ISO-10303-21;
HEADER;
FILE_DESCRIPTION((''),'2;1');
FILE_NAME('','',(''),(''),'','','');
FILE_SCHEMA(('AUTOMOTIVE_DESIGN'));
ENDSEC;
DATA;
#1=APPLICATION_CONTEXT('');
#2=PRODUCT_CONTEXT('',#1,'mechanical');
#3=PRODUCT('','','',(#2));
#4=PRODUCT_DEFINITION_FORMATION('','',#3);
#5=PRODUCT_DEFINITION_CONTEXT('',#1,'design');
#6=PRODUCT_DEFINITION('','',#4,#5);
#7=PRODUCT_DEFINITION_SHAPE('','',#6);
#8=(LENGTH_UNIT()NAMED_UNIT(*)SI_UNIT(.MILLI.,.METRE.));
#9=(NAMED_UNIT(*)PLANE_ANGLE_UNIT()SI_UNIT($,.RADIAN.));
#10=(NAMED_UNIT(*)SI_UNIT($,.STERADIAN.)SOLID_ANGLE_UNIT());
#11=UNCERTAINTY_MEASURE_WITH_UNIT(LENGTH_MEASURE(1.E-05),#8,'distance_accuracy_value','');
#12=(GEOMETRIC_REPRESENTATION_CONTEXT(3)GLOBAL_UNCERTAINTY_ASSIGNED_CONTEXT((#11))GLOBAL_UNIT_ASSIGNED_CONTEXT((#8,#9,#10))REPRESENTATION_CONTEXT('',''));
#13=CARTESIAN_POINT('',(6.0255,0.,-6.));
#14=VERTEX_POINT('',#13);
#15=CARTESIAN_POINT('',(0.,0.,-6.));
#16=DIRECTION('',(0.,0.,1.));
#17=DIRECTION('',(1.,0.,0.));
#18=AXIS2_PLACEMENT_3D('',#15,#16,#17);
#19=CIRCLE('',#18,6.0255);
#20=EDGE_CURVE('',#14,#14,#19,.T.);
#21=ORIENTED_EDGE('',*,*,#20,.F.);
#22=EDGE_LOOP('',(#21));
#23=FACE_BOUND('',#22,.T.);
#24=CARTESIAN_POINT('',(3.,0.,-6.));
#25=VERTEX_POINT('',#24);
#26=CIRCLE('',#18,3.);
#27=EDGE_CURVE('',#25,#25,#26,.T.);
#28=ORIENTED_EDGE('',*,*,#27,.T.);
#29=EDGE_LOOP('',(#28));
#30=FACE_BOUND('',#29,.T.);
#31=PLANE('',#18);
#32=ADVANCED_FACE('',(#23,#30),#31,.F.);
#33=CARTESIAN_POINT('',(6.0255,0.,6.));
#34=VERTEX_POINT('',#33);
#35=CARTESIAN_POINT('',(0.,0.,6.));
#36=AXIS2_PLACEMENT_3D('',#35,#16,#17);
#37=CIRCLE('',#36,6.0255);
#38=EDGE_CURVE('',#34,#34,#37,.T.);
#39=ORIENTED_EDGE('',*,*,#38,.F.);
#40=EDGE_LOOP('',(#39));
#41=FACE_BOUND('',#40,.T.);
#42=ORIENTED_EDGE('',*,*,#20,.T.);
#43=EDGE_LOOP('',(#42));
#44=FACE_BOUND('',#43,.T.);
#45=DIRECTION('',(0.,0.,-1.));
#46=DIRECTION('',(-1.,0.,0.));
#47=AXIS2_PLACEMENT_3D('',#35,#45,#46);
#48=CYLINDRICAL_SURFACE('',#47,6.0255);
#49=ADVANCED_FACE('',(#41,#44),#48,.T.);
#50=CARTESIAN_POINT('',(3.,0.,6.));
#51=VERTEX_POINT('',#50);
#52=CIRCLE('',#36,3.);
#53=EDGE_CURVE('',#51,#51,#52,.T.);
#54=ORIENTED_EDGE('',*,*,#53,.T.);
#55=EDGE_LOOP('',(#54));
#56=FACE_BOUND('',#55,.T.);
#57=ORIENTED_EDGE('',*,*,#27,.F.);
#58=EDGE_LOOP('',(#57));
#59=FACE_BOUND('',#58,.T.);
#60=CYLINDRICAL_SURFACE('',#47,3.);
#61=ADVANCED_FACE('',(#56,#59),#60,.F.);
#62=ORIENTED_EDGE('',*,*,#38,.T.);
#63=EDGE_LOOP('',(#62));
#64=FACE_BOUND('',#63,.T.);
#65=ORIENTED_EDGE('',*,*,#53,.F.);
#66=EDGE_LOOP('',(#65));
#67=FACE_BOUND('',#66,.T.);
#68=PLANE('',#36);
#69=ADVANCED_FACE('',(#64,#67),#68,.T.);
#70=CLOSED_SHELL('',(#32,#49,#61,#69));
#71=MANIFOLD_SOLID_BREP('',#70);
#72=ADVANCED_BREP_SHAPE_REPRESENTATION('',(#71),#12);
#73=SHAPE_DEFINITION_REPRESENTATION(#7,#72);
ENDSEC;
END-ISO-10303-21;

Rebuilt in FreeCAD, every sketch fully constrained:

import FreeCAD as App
import Part
import Sketcher

doc = App.newDocument("Part")
body = doc.addObject("PartDesign::Body", "Body")

sketch1 = body.newObject("Sketcher::SketchObject", "Sketch")
sketch1.AttachmentSupport = (doc.getObject("XY_Plane"), [""])
sketch1.MapMode = "FlatFace"
sketch1.addGeometry([
    Part.Circle(App.Vector(0, 0, 0), App.Vector(0, 0, 1), 6),
    Part.Circle(App.Vector(0, 0, 0), App.Vector(0, 0, 1), 3),
], False)
sketch1.addConstraint([
    Sketcher.Constraint("Coincident", 0, 3, -1, 1),
    Sketcher.Constraint("Coincident", 1, 3, -1, 1),
    Sketcher.Constraint("Diameter", 1, 6.0),
    Sketcher.Constraint("Diameter", 0, 12.051),
])
pad1 = body.newObject("PartDesign::Pad", "Pad")
pad1.Profile = sketch1
pad1.Type = "TwoLengths"
pad1.Length = 6
pad1.Length2 = 6

doc.recompute()
